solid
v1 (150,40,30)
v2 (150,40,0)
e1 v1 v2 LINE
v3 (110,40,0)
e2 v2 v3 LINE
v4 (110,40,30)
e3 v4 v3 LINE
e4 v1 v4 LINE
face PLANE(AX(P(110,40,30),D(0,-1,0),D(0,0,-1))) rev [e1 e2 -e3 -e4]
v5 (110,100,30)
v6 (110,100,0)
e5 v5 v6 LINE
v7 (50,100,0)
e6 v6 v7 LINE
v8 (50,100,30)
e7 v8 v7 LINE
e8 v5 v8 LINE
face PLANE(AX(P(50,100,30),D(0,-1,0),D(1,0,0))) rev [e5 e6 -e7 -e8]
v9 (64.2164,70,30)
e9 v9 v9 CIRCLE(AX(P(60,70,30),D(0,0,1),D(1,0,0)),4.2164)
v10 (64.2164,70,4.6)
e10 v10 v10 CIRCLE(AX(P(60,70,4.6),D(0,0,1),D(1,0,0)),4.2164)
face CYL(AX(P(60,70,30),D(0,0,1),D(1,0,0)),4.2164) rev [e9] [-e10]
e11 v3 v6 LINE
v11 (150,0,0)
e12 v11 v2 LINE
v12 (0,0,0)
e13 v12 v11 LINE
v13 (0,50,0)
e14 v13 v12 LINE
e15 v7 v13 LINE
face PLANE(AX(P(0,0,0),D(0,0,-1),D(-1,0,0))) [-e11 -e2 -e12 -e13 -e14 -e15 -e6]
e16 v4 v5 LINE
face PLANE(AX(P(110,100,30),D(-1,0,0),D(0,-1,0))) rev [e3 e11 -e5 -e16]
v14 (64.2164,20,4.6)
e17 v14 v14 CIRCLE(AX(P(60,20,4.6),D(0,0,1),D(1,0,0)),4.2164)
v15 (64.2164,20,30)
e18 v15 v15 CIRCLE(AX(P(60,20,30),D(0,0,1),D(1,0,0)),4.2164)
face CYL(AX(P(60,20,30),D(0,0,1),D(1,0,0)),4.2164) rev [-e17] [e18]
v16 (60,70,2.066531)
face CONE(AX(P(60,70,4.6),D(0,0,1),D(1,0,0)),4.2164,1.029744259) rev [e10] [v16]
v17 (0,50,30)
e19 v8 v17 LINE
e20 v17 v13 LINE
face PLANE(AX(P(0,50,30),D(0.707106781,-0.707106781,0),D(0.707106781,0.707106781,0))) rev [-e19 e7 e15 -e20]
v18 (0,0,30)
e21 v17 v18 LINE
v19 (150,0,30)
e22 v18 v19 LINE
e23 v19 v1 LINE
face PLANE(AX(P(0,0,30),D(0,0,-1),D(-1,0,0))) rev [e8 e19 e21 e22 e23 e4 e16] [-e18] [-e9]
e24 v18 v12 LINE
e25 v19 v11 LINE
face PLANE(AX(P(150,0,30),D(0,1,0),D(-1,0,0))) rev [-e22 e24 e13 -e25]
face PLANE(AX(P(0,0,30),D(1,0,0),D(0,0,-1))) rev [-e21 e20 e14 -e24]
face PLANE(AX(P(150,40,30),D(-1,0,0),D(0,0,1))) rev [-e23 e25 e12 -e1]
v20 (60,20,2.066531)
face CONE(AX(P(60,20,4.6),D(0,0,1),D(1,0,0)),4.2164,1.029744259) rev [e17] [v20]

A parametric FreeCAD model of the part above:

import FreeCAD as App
import Part
import Sketcher
from FreeCAD import Vector


def add_polygon(sketch, points):
    """Adds a closed chain of lines whose ends are joined by coincident constraints."""
    first, n = sketch.GeometryCount, len(points)
    for a, b in zip(points, points[1:] + points[:1]):
        sketch.addGeometry(Part.LineSegment(App.Vector(*a, 0), App.Vector(*b, 0)), False)
    for i in range(n):
        sketch.addConstraint(Sketcher.Constraint("Coincident", first + i, 2, first + (i + 1) % n, 1))

doc = App.newDocument("Part")
body = doc.addObject("PartDesign::Body", "Body")

sketch1 = doc.addObject("Sketcher::SketchObject", "Sketch")
body.addObject(sketch1)
sketch1.AttachmentSupport = (doc.XY_Plane, [""])
sketch1.MapMode = "FlatFace"
add_polygon(sketch1, [(0, 50), (0, 0), (150, 0), (150, 40), (110, 40), (110, 100), (50, 100)])
sketch1.addConstraint([
    Sketcher.Constraint("Vertical", 0),
    Sketcher.Constraint("Horizontal", 1),
    Sketcher.Constraint("Vertical", 2),
    Sketcher.Constraint("Horizontal", 3),
    Sketcher.Constraint("Vertical", 4),
    Sketcher.Constraint("Horizontal", 5),
    Sketcher.Constraint("Coincident", 0, 2, -1, 1),
    Sketcher.Constraint("Equal", 3, 2),
    Sketcher.Constraint("Equal", 5, 4),
    Sketcher.Constraint("DistanceX", 1, 1, 1, 2, 150.0),
    Sketcher.Constraint("DistanceX", 3, 2, 3, 1, 40.0),
    Sketcher.Constraint("DistanceX", 5, 2, 5, 1, 60.0),
    Sketcher.Constraint("DistanceY", 0, 2, 0, 1, 50.0),
])
pad1 = doc.addObject("PartDesign::Pad", "Pad")
body.addObject(pad1)
pad1.Profile = sketch1
pad1.Length = 30

sketch2 = doc.addObject("Sketcher::SketchObject", "Sketch001")
body.addObject(sketch2)
sketch2.AttachmentSupport = (doc.XY_Plane, [""])
sketch2.MapMode = "FlatFace"
sketch2.AttachmentOffset = App.Placement(Vector(0, 0, 30), App.Rotation())
sketch2.addGeometry([
    Part.Circle(Vector(60, 70, 0), Vector(0, 0, 1), 4.2),
    Part.Circle(Vector(60, 20, 0), Vector(0, 0, 1), 4.2),
], False)
sketch2.addConstraint([
    Sketcher.Constraint("Equal", 0, 1),
    Sketcher.Constraint("Vertical", 0, 3, 1, 3),
    Sketcher.Constraint("DistanceX", -1, 1, 0, 3, 60.0),
    Sketcher.Constraint("DistanceY", -1, 1, 0, 3, 70.0),
    Sketcher.Constraint("DistanceY", -1, 1, 1, 3, 20.0),
    Sketcher.Constraint("Diameter", 0, 8.4328),
])
doc.recompute()
hole = doc.addObject("PartDesign::Hole", "Hole")
body.addObject(hole)
hole.Profile = sketch2
hole.ThreadType = "None"
hole.Diameter = 8.4328
hole.DepthType = "Dimension"
hole.Depth = 25.4
hole.DrillPoint = "Angled"
hole.DrillPointAngle = 118

doc.recompute()
